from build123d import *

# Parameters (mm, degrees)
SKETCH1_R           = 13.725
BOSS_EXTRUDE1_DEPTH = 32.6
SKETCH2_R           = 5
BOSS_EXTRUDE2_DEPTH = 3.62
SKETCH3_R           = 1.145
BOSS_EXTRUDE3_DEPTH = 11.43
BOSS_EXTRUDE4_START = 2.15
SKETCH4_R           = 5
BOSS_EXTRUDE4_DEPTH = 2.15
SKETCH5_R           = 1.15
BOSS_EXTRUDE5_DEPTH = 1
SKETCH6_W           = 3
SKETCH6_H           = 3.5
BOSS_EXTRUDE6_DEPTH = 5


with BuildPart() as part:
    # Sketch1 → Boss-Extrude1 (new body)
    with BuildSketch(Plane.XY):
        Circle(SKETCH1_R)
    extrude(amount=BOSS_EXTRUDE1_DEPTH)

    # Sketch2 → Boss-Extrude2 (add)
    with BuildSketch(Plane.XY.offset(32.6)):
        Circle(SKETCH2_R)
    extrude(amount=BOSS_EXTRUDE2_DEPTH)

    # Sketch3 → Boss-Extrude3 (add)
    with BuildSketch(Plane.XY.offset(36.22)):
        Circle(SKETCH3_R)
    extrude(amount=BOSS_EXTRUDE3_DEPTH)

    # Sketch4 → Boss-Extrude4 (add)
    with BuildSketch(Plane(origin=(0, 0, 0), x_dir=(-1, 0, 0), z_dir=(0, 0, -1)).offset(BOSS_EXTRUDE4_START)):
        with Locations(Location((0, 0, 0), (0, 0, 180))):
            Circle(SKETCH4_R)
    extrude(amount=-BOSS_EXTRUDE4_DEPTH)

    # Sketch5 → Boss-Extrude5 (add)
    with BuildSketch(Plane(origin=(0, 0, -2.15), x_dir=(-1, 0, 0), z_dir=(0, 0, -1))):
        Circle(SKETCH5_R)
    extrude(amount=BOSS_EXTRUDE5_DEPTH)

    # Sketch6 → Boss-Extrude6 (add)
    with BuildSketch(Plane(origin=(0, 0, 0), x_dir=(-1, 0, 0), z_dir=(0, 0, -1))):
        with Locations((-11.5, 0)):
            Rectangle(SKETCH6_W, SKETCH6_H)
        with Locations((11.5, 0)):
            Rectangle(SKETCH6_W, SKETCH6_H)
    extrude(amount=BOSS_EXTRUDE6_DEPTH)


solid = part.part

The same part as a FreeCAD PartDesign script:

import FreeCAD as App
import Part
import Sketcher
from FreeCAD import Vector
Q = App.Units.Quantity

doc = App.newDocument("Part")
body = doc.addObject("PartDesign::Body", "Body")

# Sketch on XY plane
sketch1 = body.newObject("Sketcher::SketchObject", "Sketch")
sketch1.AttachmentSupport = (doc.getObject("XY_Plane"), [""])
sketch1.MapMode = "FlatFace"
sketch1.addGeometry(Part.Circle(Vector(0, 0, 0), Vector(0, 0, 1), 13.725), False)
sketch1.addConstraint([
    Sketcher.Constraint("Coincident", 0, 3, -1, 1),
    Sketcher.Constraint("Diameter", 0, Q("27.45 mm")),
])
pad1 = body.newObject("PartDesign::Pad", "Pad")
pad1.Profile = sketch1
pad1.Length = 32.6

# Sketch on XY plane
sketch2 = body.newObject("Sketcher::SketchObject", "Sketch001")
sketch2.AttachmentSupport = (doc.getObject("XY_Plane"), [""])
sketch2.MapMode = "FlatFace"
sketch2.AttachmentOffset = App.Placement(Vector(0, 0, 32.6), App.Rotation())
sketch2.addGeometry(Part.Circle(Vector(0, 0, 0), Vector(0, 0, 1), 5), False)
sketch2.addConstraint([
    Sketcher.Constraint("Coincident", 0, 3, -1, 1),
    Sketcher.Constraint("Diameter", 0, Q("10 mm")),
])
pad2 = body.newObject("PartDesign::Pad", "Pad001")
pad2.Profile = sketch2
pad2.Length = 3.62

# Sketch on XY plane
sketch3 = body.newObject("Sketcher::SketchObject", "Sketch002")
sketch3.AttachmentSupport = (doc.getObject("XY_Plane"), [""])
sketch3.MapMode = "FlatFace"
sketch3.AttachmentOffset = App.Placement(Vector(0, 0, 36.22), App.Rotation())
sketch3.addGeometry(Part.Circle(Vector(0, 0, 0), Vector(0, 0, 1), 1.145), False)
sketch3.addConstraint([
    Sketcher.Constraint("Coincident", 0, 3, -1, 1),
    Sketcher.Constraint("Diameter", 0, Q("2.29 mm")),
])
pad3 = body.newObject("PartDesign::Pad", "Pad002")
pad3.Profile = sketch3
pad3.Length = 11.43

# Sketch on XY plane
sketch4 = body.newObject("Sketcher::SketchObject", "Sketch003")
sketch4.AttachmentSupport = (doc.getObject("XY_Plane"), [""])
sketch4.MapMode = "FlatFace"
sketch4.AttachmentOffset = App.Placement(Vector(0, 0, -2.15), App.Rotation())
sketch4.addGeometry(Part.Circle(Vector(0, 0, 0), Vector(0, 0, 1), 5), False)
sketch4.addConstraint([
    Sketcher.Constraint("Coincident", 0, 3, -1, 1),
    Sketcher.Constraint("Diameter", 0, Q("10 mm")),
])
pad4 = body.newObject("PartDesign::Pad", "Pad003")
pad4.Profile = sketch4
pad4.Length = 2.15

# Sketch on XY plane
sketch5 = body.newObject("Sketcher::SketchObject", "Sketch004")
sketch5.AttachmentSupport = (doc.getObject("XY_Plane"), [""])
sketch5.MapMode = "FlatFace"
sketch5.AttachmentOffset = App.Placement(Vector(0, 0, -2.15), App.Rotation())
sketch5.addGeometry(Part.Circle(Vector(0, 0, 0), Vector(0, 0, 1), 1.15), False)
sketch5.addConstraint([
    Sketcher.Constraint("Coincident", 0, 3, -1, 1),
    Sketcher.Constraint("Diameter", 0, Q("2.3 mm")),
])
pad5 = body.newObject("PartDesign::Pad", "Pad004")
pad5.Profile = sketch5
pad5.Length = 1
pad5.Reversed = True

# Sketch on XY plane
sketch6 = body.newObject("Sketcher::SketchObject", "Sketch005")
sketch6.AttachmentSupport = (doc.getObject("XY_Plane"), [""])
sketch6.MapMode = "FlatFace"
sketch6.addGeometry([
    Part.LineSegment(Vector(13, 1.75, 0), Vector(13, -1.75, 0)),  # 0
    Part.LineSegment(Vector(13, -1.75, 0), Vector(10, -1.75, 0)),  # 1
    Part.LineSegment(Vector(10, -1.75, 0), Vector(10, 1.75, 0)),  # 2
    Part.LineSegment(Vector(10, 1.75, 0), Vector(13, 1.75, 0)),  # 3
    Part.LineSegment(Vector(-10, 1.75, 0), Vector(-10, -1.75, 0)),  # 4
    Part.LineSegment(Vector(-10, -1.75, 0), Vector(-13, -1.75, 0)),  # 5
    Part.LineSegment(Vector(-13, -1.75, 0), Vector(-13, 1.75, 0)),  # 6
    Part.LineSegment(Vector(-13, 1.75, 0), Vector(-10, 1.75, 0)),  # 7
], False)
sketch6.addConstraint([
    Sketcher.Constraint("Coincident", 0, 2, 1, 1),
    Sketcher.Constraint("Coincident", 1, 2, 2, 1),
    Sketcher.Constraint("Coincident", 2, 2, 3, 1),
    Sketcher.Constraint("Coincident", 3, 2, 0, 1),
    Sketcher.Constraint("Coincident", 4, 2, 5, 1),
    Sketcher.Constraint("Coincident", 5, 2, 6, 1),
    Sketcher.Constraint("Coincident", 6, 2, 7, 1),
    Sketcher.Constraint("Coincident", 7, 2, 4, 1),
    Sketcher.Constraint("Vertical", 0),
    Sketcher.Constraint("Horizontal", 1),
    Sketcher.Constraint("Vertical", 2),
    Sketcher.Constraint("Horizontal", 3),
    Sketcher.Constraint("Vertical", 4),
    Sketcher.Constraint("Horizontal", 5),
    Sketcher.Constraint("Vertical", 6),
    Sketcher.Constraint("Horizontal", 7),
    Sketcher.Constraint("Symmetric", 2, 2, 4, 2, -1, 1),
    Sketcher.Constraint("Symmetric", 0, 2, 6, 2, -1, 1),
    Sketcher.Constraint("Horizontal", 1, 2, 4, 2),
    Sketcher.Constraint("DistanceX", 1, 2, 1, 1, Q("3 mm")),
    Sketcher.Constraint("DistanceY", 0, 2, 0, 1, Q("3.5 mm")),
    Sketcher.Constraint("DistanceX", -1, 1, 0, 2, Q("13 mm")),
])
pad6 = body.newObject("PartDesign::Pad", "Pad005")
pad6.Profile = sketch6
pad6.Length = 5
pad6.Reversed = True

doc.recompute()
